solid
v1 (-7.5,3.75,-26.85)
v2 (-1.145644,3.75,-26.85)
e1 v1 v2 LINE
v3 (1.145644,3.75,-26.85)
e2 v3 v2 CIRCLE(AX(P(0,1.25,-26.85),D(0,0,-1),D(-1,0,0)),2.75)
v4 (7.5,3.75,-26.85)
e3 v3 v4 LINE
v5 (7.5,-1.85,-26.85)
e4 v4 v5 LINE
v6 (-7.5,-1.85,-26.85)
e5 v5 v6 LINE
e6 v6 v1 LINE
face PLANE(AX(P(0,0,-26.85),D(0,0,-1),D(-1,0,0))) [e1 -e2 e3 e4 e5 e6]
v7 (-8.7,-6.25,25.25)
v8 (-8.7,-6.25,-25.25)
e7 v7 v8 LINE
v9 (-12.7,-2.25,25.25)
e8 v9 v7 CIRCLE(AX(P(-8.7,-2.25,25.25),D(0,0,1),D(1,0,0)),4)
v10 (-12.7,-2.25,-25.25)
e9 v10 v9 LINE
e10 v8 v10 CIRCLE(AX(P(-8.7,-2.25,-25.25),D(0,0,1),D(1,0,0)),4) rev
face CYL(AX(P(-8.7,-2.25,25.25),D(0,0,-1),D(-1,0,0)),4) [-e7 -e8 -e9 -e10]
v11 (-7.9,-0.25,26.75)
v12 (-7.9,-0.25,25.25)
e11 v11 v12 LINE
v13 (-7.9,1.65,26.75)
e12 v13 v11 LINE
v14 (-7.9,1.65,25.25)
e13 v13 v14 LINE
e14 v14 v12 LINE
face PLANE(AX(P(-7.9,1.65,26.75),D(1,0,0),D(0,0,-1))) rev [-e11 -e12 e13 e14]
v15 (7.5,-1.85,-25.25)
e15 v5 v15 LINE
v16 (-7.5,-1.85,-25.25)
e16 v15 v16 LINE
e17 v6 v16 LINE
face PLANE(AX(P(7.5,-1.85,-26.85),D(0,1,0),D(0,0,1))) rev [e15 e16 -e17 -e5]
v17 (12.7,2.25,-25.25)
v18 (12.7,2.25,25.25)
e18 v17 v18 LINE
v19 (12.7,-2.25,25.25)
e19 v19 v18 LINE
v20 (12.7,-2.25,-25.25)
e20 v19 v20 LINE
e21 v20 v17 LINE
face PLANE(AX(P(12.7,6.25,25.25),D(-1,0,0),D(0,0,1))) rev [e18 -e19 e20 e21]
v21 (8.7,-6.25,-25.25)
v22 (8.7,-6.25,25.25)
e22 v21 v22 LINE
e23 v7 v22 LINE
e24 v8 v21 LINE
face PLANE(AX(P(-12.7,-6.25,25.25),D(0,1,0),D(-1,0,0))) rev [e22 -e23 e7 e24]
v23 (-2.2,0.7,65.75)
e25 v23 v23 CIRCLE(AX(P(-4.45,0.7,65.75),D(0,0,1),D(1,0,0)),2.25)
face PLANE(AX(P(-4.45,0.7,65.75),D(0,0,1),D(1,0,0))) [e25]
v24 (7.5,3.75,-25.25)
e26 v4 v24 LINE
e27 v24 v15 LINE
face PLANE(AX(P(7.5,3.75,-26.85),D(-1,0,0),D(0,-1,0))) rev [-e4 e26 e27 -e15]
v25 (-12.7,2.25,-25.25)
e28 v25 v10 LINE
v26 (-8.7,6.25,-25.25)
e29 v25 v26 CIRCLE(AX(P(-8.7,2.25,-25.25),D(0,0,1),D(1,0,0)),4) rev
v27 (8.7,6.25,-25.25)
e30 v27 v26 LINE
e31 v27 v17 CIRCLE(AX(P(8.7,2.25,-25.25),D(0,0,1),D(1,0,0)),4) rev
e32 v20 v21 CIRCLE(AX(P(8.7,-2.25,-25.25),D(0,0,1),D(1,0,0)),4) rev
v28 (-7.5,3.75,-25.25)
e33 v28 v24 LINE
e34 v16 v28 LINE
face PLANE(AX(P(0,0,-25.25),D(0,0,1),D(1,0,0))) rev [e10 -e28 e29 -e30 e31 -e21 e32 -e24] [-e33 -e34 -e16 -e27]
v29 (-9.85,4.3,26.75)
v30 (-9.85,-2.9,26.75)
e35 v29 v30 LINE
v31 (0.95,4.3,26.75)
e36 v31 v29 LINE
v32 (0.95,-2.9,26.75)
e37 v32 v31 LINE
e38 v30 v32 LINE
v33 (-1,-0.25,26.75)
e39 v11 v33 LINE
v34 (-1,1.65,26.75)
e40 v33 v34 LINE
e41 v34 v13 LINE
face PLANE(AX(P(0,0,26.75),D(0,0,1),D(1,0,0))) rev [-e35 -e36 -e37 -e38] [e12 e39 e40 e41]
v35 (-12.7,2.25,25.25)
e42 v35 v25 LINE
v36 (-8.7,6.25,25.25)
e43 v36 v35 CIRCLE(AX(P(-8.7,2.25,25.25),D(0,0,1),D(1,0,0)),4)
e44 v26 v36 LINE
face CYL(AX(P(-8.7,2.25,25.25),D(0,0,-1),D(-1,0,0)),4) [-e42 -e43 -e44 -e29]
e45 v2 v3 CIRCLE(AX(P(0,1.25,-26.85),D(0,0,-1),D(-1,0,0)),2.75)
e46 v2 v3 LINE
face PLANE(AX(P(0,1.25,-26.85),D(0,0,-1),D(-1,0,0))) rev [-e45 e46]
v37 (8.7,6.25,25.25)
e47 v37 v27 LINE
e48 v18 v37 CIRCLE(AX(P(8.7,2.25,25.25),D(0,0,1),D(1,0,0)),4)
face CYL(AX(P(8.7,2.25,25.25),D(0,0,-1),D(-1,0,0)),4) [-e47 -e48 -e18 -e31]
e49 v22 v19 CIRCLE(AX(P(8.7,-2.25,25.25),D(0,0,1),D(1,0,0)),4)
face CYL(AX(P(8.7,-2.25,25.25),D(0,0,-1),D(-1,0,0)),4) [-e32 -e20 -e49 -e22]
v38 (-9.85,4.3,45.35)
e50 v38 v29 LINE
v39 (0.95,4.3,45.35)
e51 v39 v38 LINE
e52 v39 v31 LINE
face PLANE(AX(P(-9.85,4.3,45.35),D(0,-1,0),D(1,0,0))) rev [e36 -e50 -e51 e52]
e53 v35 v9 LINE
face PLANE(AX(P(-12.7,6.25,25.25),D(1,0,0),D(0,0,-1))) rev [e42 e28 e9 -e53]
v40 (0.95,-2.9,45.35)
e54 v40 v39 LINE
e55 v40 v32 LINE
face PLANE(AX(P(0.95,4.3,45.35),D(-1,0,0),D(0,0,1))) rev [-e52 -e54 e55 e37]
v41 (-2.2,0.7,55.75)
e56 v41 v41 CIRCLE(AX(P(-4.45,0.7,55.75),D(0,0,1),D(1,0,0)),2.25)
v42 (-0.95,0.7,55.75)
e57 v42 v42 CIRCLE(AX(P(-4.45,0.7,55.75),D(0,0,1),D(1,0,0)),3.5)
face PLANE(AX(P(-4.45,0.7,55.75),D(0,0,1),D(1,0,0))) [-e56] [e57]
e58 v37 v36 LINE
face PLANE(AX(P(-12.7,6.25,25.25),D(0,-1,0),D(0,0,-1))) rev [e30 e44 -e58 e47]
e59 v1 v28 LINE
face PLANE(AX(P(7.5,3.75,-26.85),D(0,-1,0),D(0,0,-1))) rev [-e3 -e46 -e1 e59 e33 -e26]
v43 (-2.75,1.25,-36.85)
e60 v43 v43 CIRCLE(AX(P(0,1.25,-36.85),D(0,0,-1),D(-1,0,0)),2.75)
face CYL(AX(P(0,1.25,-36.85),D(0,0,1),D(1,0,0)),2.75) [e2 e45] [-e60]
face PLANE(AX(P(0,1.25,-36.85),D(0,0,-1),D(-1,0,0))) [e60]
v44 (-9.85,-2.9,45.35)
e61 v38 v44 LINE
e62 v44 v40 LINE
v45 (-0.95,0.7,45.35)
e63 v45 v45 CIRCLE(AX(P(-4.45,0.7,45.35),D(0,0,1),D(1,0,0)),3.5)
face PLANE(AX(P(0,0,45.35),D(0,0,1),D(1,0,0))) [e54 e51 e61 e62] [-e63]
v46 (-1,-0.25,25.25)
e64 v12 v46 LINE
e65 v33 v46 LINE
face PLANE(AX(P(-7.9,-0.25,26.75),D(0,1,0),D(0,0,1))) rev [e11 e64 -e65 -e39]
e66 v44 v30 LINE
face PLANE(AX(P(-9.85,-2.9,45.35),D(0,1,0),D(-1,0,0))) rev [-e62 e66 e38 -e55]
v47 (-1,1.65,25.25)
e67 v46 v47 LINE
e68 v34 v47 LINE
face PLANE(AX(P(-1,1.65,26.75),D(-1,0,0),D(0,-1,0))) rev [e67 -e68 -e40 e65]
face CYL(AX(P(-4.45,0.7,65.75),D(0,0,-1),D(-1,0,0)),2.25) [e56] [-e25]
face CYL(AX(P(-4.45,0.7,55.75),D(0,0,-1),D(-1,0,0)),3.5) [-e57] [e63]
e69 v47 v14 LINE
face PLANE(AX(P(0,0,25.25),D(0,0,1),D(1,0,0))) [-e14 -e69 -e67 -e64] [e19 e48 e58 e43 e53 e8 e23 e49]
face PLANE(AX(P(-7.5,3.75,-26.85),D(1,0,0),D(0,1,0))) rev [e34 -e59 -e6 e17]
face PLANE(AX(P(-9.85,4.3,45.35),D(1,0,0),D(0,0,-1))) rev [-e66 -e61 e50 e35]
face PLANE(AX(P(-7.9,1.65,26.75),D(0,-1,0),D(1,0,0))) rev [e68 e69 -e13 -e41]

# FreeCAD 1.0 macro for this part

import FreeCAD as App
import Part
import Sketcher
from FreeCAD import Vector


def edges_at(feature, points):
    """Names of the edges that pass closest to the given points."""
    edges = feature.Shape.Edges
    near = lambda p: min(range(len(edges)), key=lambda i: edges[i].distToShape(Part.Vertex(*p))[0])
    return sorted({f"Edge{near(p) + 1}" for p in points})


def add_polygon(sketch, points):
    """Adds a closed chain of lines whose ends are joined by coincident constraints."""
    first, n = sketch.GeometryCount, len(points)
    for a, b in zip(points, points[1:] + points[:1]):
        sketch.addGeometry(Part.LineSegment(App.Vector(*a, 0), App.Vector(*b, 0)), False)
    for i in range(n):
        sketch.addConstraint(Sketcher.Constraint("Coincident", first + i, 2, first + (i + 1) % n, 1))

doc = App.newDocument("Part")
body = doc.addObject("PartDesign::Body", "Body")

sketch1 = body.newObject("Sketcher::SketchObject", "Sketch")
sketch1.AttachmentSupport = (doc.getObject("XY_Plane"), [""])
sketch1.MapMode = "FlatFace"
add_polygon(sketch1, [(-12.7, 6.25), (-12.7, -6.25), (12.7, -6.25), (12.7, 6.25)])
sketch1.addConstraint(Sketcher.Constraint("Vertical", 0))
sketch1.addConstraint(Sketcher.Constraint("Horizontal", 1))
sketch1.addConstraint(Sketcher.Constraint("Vertical", 2))
sketch1.addConstraint(Sketcher.Constraint("Horizontal", 3))
sketch1.addConstraint(Sketcher.Constraint("Symmetric", 0, 2, 2, 2, -1, 1))
sketch1.addConstraint(Sketcher.Constraint("DistanceX", 1, 1, 1, 2, 25.4))
sketch1.addConstraint(Sketcher.Constraint("DistanceY", 0, 2, 0, 1, 12.5))
pad1 = body.newObject("PartDesign::Pad", "Pad")
pad1.Profile = sketch1
pad1.Length = 50.5
pad1.Midplane = True
doc.recompute()

fillet = body.newObject("PartDesign::Fillet", "Fillet")
fillet.Base = (pad1, edges_at(pad1, [
    (-12.7, 6.25, 0),
    (12.7, 6.25, 0),
    (12.7, -6.25, 0),
    (-12.7, -6.25, 0),
]))
fillet.Radius = 4

sketch2 = body.newObject("Sketcher::SketchObject", "Sketch001")
sketch2.AttachmentSupport = (doc.getObject("XY_Plane"), [""])
sketch2.MapMode = "FlatFace"
sketch2.AttachmentOffset = App.Placement(Vector(0, 0, 25.25), App.Rotation())
add_polygon(sketch2, [(-7.9, 1.65), (-7.9, -0.25), (-1, -0.25), (-1, 1.65)])
sketch2.addConstraint(Sketcher.Constraint("Vertical", 0))
sketch2.addConstraint(Sketcher.Constraint("Horizontal", 1))
sketch2.addConstraint(Sketcher.Constraint("Vertical", 2))
sketch2.addConstraint(Sketcher.Constraint("Horizontal", 3))
sketch2.addConstraint(Sketcher.Constraint("DistanceX", 1, 1, 1, 2, 6.9))
sketch2.addConstraint(Sketcher.Constraint("DistanceY", 0, 2, 0, 1, 1.9))
sketch2.addConstraint(Sketcher.Constraint("DistanceX", 1, 2, -1, 1, 1.0))
sketch2.addConstraint(Sketcher.Constraint("DistanceY", 0, 2, -1, 1, 0.25))
pad2 = body.newObject("PartDesign::Pad", "Pad001")
pad2.Profile = sketch2
pad2.Length = 1.5

sketch3 = body.newObject("Sketcher::SketchObject", "Sketch002")
sketch3.AttachmentSupport = (doc.getObject("XY_Plane"), [""])
sketch3.MapMode = "FlatFace"
sketch3.AttachmentOffset = App.Placement(Vector(0, 0, 26.75), App.Rotation())
add_polygon(sketch3, [(-9.85, 4.3), (-9.85, -2.9), (0.95, -2.9), (0.95, 4.3)])
sketch3.addConstraint(Sketcher.Constraint("Vertical", 0))
sketch3.addConstraint(Sketcher.Constraint("Horizontal", 1))
sketch3.addConstraint(Sketcher.Constraint("Vertical", 2))
sketch3.addConstraint(Sketcher.Constraint("Horizontal", 3))
sketch3.addConstraint(Sketcher.Constraint("DistanceX", 1, 1, 1, 2, 10.8))
sketch3.addConstraint(Sketcher.Constraint("DistanceY", 0, 2, 0, 1, 7.2))
sketch3.addConstraint(Sketcher.Constraint("DistanceY", 0, 2, -1, 1, 2.9))
sketch3.addConstraint(Sketcher.Constraint("DistanceX", 0, 2, -1, 1, 9.85))
pad3 = body.newObject("PartDesign::Pad", "Pad002")
pad3.Profile = sketch3
pad3.Length = 18.6

sketch4 = body.newObject("Sketcher::SketchObject", "Sketch003")
sketch4.AttachmentSupport = (doc.getObject("XY_Plane"), [""])
sketch4.MapMode = "FlatFace"
sketch4.AttachmentOffset = App.Placement(Vector(0, 0, 45.35), App.Rotation())
sketch4.addGeometry(Part.Circle(Vector(-4.45, 0.7, 0), Vector(0, 0, 1), 3.5), False)
sketch4.addConstraint(Sketcher.Constraint("Diameter", 0, 7.0))
sketch4.addConstraint(Sketcher.Constraint("DistanceY", -1, 1, 0, 3, 0.7))
sketch4.addConstraint(Sketcher.Constraint("DistanceX", 0, 3, -1, 1, 4.45))
pad4 = body.newObject("PartDesign::Pad", "Pad003")
pad4.Profile = sketch4
pad4.Length = 10.4

sketch5 = body.newObject("Sketcher::SketchObject", "Sketch004")
sketch5.AttachmentSupport = (doc.getObject("XY_Plane"), [""])
sketch5.MapMode = "FlatFace"
sketch5.AttachmentOffset = App.Placement(Vector(0, 0, 55.75), App.Rotation())
sketch5.addGeometry(Part.Circle(Vector(-4.45, 0.7, 0), Vector(0, 0, 1), 2.25), False)
sketch5.addConstraint(Sketcher.Constraint("Diameter", 0, 4.5))
sketch5.addConstraint(Sketcher.Constraint("DistanceY", -1, 1, 0, 3, 0.7))
sketch5.addConstraint(Sketcher.Constraint("DistanceX", 0, 3, -1, 1, 4.45))
pad5 = body.newObject("PartDesign::Pad", "Pad004")
pad5.Profile = sketch5
pad5.Length = 10

sketch6 = body.newObject("Sketcher::SketchObject", "Sketch005")
sketch6.AttachmentSupport = (doc.getObject("XY_Plane"), [""])
sketch6.MapMode = "FlatFace"
sketch6.AttachmentOffset = App.Placement(Vector(0, 0, -25.25), App.Rotation())
add_polygon(sketch6, [(7.5, 3.75), (7.5, -1.85), (-7.5, -1.85), (-7.5, 3.75)])
sketch6.addConstraint(Sketcher.Constraint("Vertical", 0))
sketch6.addConstraint(Sketcher.Constraint("Horizontal", 1))
sketch6.addConstraint(Sketcher.Constraint("Vertical", 2))
sketch6.addConstraint(Sketcher.Constraint("Horizontal", 3))
sketch6.addConstraint(Sketcher.Constraint("DistanceX", 1, 2, 1, 1, 15.0))
sketch6.addConstraint(Sketcher.Constraint("DistanceY", 0, 2, 0, 1, 5.6))
sketch6.addConstraint(Sketcher.Constraint("DistanceX", -1, 1, 0, 2, 7.5))
sketch6.addConstraint(Sketcher.Constraint("DistanceY", 0, 2, -1, 1, 1.85))
pad6 = body.newObject("PartDesign::Pad", "Pad005")
pad6.Profile = sketch6
pad6.Length = 1.6
pad6.Reversed = True

sketch7 = body.newObject("Sketcher::SketchObject", "Sketch006")
sketch7.AttachmentSupport = (doc.getObject("XY_Plane"), [""])
sketch7.MapMode = "FlatFace"
sketch7.AttachmentOffset = App.Placement(Vector(0, 0, -26.85), App.Rotation())
sketch7.addGeometry(Part.Circle(Vector(0, 1.25, 0), Vector(0, 0, 1), 2.75), False)
sketch7.addConstraint(Sketcher.Constraint("PointOnObject", 0, 3, -2))
sketch7.addConstraint(Sketcher.Constraint("Diameter", 0, 5.5))
sketch7.addConstraint(Sketcher.Constraint("DistanceY", -1, 1, 0, 3, 1.25))
pad7 = body.newObject("PartDesign::Pad", "Pad006")
pad7.Profile = sketch7
pad7.Length = 10
pad7.Reversed = True

doc.recompute()
